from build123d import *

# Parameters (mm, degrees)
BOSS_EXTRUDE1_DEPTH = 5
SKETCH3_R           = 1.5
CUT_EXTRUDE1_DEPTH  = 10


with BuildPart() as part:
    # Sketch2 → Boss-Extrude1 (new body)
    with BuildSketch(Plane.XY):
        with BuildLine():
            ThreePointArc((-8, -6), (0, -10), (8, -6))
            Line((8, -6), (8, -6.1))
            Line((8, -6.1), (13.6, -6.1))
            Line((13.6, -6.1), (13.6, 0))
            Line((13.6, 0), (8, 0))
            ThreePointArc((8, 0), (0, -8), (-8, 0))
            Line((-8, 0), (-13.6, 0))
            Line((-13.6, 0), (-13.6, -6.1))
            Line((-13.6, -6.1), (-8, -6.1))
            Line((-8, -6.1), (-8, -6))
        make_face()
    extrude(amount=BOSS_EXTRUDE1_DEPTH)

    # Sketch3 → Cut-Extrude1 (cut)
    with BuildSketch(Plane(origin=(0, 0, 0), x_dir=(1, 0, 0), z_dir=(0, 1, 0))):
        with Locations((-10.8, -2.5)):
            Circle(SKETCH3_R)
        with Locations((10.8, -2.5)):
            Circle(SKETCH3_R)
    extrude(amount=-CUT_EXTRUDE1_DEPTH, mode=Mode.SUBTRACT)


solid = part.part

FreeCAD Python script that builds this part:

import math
import FreeCAD as App
import Part
import Sketcher

doc = App.newDocument("Part")
body = doc.addObject("PartDesign::Body", "Body")

sketch1 = doc.addObject("Sketcher::SketchObject", "Sketch")
body.addObject(sketch1)
sketch1.AttachmentSupport = (doc.XY_Plane, [""])
sketch1.MapMode = "FlatFace"
sketch1.addGeometry(Part.ArcOfCircle(Part.Circle(App.Vector(0, 0, 0), App.Vector(0, 0, 1), 10), math.radians(-143), math.radians(-37)), False)
sketch1.addGeometry(Part.LineSegment(App.Vector(8, -6, 0), App.Vector(8, -6.1, 0)), False)
sketch1.addGeometry(Part.LineSegment(App.Vector(8, -6.1, 0), App.Vector(13.6, -6.1, 0)), False)
sketch1.addGeometry(Part.LineSegment(App.Vector(13.6, -6.1, 0), App.Vector(13.6, 0, 0)), False)
sketch1.addGeometry(Part.LineSegment(App.Vector(13.6, 0, 0), App.Vector(8, 0, 0)), False)
sketch1.addGeometry(Part.ArcOfCircle(Part.Circle(App.Vector(0, 0, 0), App.Vector(0, 0, 1), 8), math.radians(180), math.radians(360)), False)
sketch1.addGeometry(Part.LineSegment(App.Vector(-8, 0, 0), App.Vector(-13.6, 0, 0)), False)
sketch1.addGeometry(Part.LineSegment(App.Vector(-13.6, 0, 0), App.Vector(-13.6, -6.1, 0)), False)
sketch1.addGeometry(Part.LineSegment(App.Vector(-13.6, -6.1, 0), App.Vector(-8, -6.1, 0)), False)
sketch1.addGeometry(Part.LineSegment(App.Vector(-8, -6.1, 0), App.Vector(-8, -6, 0)), False)
sketch1.addConstraint(Sketcher.Constraint("Coincident", 0, 2, 1, 1))
sketch1.addConstraint(Sketcher.Constraint("Coincident", 1, 2, 2, 1))
sketch1.addConstraint(Sketcher.Constraint("Coincident", 2, 2, 3, 1))
sketch1.addConstraint(Sketcher.Constraint("Coincident", 3, 2, 4, 1))
sketch1.addConstraint(Sketcher.Constraint("Coincident", 4, 2, 5, 2))
sketch1.addConstraint(Sketcher.Constraint("Coincident", 5, 1, 6, 1))
sketch1.addConstraint(Sketcher.Constraint("Coincident", 6, 2, 7, 1))
sketch1.addConstraint(Sketcher.Constraint("Coincident", 7, 2, 8, 1))
sketch1.addConstraint(Sketcher.Constraint("Coincident", 8, 2, 9, 1))
sketch1.addConstraint(Sketcher.Constraint("Coincident", 9, 2, 0, 1))
sketch1.addConstraint(Sketcher.Constraint("Vertical", 1))
sketch1.addConstraint(Sketcher.Constraint("Horizontal", 2))
sketch1.addConstraint(Sketcher.Constraint("Vertical", 3))
sketch1.addConstraint(Sketcher.Constraint("Horizontal", 4))
sketch1.addConstraint(Sketcher.Constraint("Horizontal", 6))
sketch1.addConstraint(Sketcher.Constraint("Vertical", 7))
sketch1.addConstraint(Sketcher.Constraint("Horizontal", 8))
sketch1.addConstraint(Sketcher.Constraint("Vertical", 9))
sketch1.addConstraint(Sketcher.Constraint("Coincident", 0, 3, -1, 1))
sketch1.addConstraint(Sketcher.Constraint("Coincident", 5, 3, -1, 1))
sketch1.addConstraint(Sketcher.Constraint("Symmetric", 3, 2, 6, 2, -1, 1))
sketch1.addConstraint(Sketcher.Constraint("Symmetric", 1, 2, 8, 2, -2))
sketch1.addConstraint(Sketcher.Constraint("PointOnObject", 3, 2, -1))
sketch1.addConstraint(Sketcher.Constraint("Vertical", 1, 2, 4, 2))
sketch1.addConstraint(Sketcher.Constraint("Radius", 0, 10.0))
sketch1.addConstraint(Sketcher.Constraint("Radius", 5, 8.0))
sketch1.addConstraint(Sketcher.Constraint("DistanceX", 2, 1, 2, 2, 5.6))
sketch1.addConstraint(Sketcher.Constraint("DistanceY", 1, 2, 1, 1, 0.1))
pad1 = doc.addObject("PartDesign::Pad", "Pad")
body.addObject(pad1)
pad1.Profile = sketch1
pad1.Length = 5

sketch2 = doc.addObject("Sketcher::SketchObject", "Sketch001")
body.addObject(sketch2)
sketch2.AttachmentSupport = (doc.XZ_Plane, [""])
sketch2.MapMode = "FlatFace"
sketch2.addGeometry(Part.Circle(App.Vector(-10.8, 2.5, 0), App.Vector(0, 0, 1), 1.5), False)
sketch2.addGeometry(Part.Circle(App.Vector(10.8, 2.5, 0), App.Vector(0, 0, 1), 1.5), False)
sketch2.addConstraint(Sketcher.Constraint("Equal", 0, 1))
sketch2.addConstraint(Sketcher.Constraint("Symmetric", 0, 3, 1, 3, -2))
sketch2.addConstraint(Sketcher.Constraint("Diameter", 0, 3.0))
sketch2.addConstraint(Sketcher.Constraint("DistanceX", 0, 3, -1, 1, 10.8))
sketch2.addConstraint(Sketcher.Constraint("DistanceY", -1, 1, 0, 3, 2.5))
pocket1 = doc.addObject("PartDesign::Pocket", "Pocket")
body.addObject(pocket1)
pocket1.Profile = sketch2
pocket1.Length = 10
pocket1.Reversed = True

doc.recompute()
